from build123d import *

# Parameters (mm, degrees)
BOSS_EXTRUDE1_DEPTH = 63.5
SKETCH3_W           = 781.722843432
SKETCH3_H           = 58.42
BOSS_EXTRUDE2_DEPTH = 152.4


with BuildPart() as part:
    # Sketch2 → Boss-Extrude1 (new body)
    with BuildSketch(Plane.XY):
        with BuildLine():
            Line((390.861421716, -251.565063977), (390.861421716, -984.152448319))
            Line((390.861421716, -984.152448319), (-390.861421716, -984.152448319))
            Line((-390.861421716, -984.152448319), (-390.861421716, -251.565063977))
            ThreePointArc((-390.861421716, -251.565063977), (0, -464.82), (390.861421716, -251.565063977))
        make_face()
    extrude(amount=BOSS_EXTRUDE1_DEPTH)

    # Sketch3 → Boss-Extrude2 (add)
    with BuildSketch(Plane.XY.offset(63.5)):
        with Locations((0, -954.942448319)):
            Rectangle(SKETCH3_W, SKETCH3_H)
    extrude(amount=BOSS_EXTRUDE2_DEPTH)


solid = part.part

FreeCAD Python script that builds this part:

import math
import FreeCAD as App
import Part
import Sketcher

V = App.Vector
Q = App.Units.Quantity


def add_polygon(sketch, points):
    """Adds a closed chain of lines whose ends are joined by coincident constraints."""
    first, n = sketch.GeometryCount, len(points)
    for a, b in zip(points, points[1:] + points[:1]):
        sketch.addGeometry(Part.LineSegment(App.Vector(*a, 0), App.Vector(*b, 0)), False)
    for i in range(n):
        sketch.addConstraint(Sketcher.Constraint("Coincident", first + i, 2, first + (i + 1) % n, 1))

doc = App.newDocument("Part")
params = doc.addObject("Spreadsheet::Sheet", "Params")
for row, (alias, value) in enumerate([
    ("sketch1_radius", "18.3 in"),
    ("pad1_length", "2.5 in"),
    ("sketch2_height", "2.3 in"),
    ("pad2_length", "6 in"),
], start=1):
    params.set(f"A{row}", alias)
    params.set(f"B{row}", "=" + value)
    params.setAlias(f"B{row}", alias)

body = doc.addObject("PartDesign::Body", "Body")

# Sketch on XY plane
sketch1 = doc.addObject("Sketcher::SketchObject", "Sketch")
body.addObject(sketch1)
sketch1.AttachmentSupport = (doc.XY_Plane, [""])
sketch1.MapMode = "FlatFace"
sketch1.addGeometry(Part.LineSegment(V(391, -984, 0), V(391, -252, 0)), False)
sketch1.addGeometry(Part.ArcOfCircle(Part.Circle(V(0, 0, 0), V(0, 0, 1), 465), math.radians(-147), math.radians(-33)), False)
sketch1.addGeometry(Part.LineSegment(V(-391, -252, 0), V(-391, -984, 0)), False)
sketch1.addGeometry(Part.LineSegment(V(-391, -984, 0), V(391, -984, 0)), False)
sketch1.addConstraint(Sketcher.Constraint("Coincident", 0, 2, 1, 2))
sketch1.addConstraint(Sketcher.Constraint("Coincident", 1, 1, 2, 1))
sketch1.addConstraint(Sketcher.Constraint("Coincident", 2, 2, 3, 1))
sketch1.addConstraint(Sketcher.Constraint("Coincident", 3, 2, 0, 1))
sketch1.addConstraint(Sketcher.Constraint("Vertical", 0))
sketch1.addConstraint(Sketcher.Constraint("Vertical", 2))
sketch1.addConstraint(Sketcher.Constraint("Horizontal", 3))
sketch1.addConstraint(Sketcher.Constraint("Coincident", 1, 3, -1, 1))
sketch1.addConstraint(Sketcher.Constraint("Horizontal", 0, 2, 1, 1))
sketch1.addConstraint(Sketcher.Constraint("Radius", 1, Q("18.3 in")))
sketch1.addConstraint(Sketcher.Constraint("DistanceX", 3, 1, 3, 2, 781.722843))
sketch1.addConstraint(Sketcher.Constraint("DistanceY", 0, 1, 0, 2, 732.587384))
sketch1.setExpression("Constraints[9]", "Params.sketch1_radius")
pad1 = doc.addObject("PartDesign::Pad", "Pad")
body.addObject(pad1)
pad1.Profile = sketch1
pad1.setExpression("Length", "Params.pad1_length")

# Sketch on XY plane
sketch2 = doc.addObject("Sketcher::SketchObject", "Sketch001")
body.addObject(sketch2)
sketch2.AttachmentSupport = (doc.XY_Plane, [""])
sketch2.MapMode = "FlatFace"
sketch2.AttachmentOffset = App.Placement(V(0, 0, 2.5 * 25.4), App.Rotation())
add_polygon(sketch2, [(-391, -926), (-391, -984), (391, -984), (391, -926)])  # lines 0-3
sketch2.addConstraint(Sketcher.Constraint("Vertical", 0))
sketch2.addConstraint(Sketcher.Constraint("Horizontal", 1))
sketch2.addConstraint(Sketcher.Constraint("Vertical", 2))
sketch2.addConstraint(Sketcher.Constraint("Horizontal", 3))
sketch2.addConstraint(Sketcher.Constraint("DistanceY", 0, 2, 0, 1, Q("2.3 in")))
sketch2.addConstraint(Sketcher.Constraint("DistanceX", 1, 1, 1, 2, 781.722843))
sketch2.addConstraint(Sketcher.Constraint("DistanceX", 0, 2, -1, 1, 390.861422))
sketch2.addConstraint(Sketcher.Constraint("DistanceY", 0, 2, -1, 1, 984.152448))
sketch2.setExpression("Constraints[8]", "Params.sketch2_height")
pad2 = doc.addObject("PartDesign::Pad", "Pad001")
body.addObject(pad2)
pad2.Profile = sketch2
pad2.setExpression("Length", "Params.pad2_length")

doc.recompute()
